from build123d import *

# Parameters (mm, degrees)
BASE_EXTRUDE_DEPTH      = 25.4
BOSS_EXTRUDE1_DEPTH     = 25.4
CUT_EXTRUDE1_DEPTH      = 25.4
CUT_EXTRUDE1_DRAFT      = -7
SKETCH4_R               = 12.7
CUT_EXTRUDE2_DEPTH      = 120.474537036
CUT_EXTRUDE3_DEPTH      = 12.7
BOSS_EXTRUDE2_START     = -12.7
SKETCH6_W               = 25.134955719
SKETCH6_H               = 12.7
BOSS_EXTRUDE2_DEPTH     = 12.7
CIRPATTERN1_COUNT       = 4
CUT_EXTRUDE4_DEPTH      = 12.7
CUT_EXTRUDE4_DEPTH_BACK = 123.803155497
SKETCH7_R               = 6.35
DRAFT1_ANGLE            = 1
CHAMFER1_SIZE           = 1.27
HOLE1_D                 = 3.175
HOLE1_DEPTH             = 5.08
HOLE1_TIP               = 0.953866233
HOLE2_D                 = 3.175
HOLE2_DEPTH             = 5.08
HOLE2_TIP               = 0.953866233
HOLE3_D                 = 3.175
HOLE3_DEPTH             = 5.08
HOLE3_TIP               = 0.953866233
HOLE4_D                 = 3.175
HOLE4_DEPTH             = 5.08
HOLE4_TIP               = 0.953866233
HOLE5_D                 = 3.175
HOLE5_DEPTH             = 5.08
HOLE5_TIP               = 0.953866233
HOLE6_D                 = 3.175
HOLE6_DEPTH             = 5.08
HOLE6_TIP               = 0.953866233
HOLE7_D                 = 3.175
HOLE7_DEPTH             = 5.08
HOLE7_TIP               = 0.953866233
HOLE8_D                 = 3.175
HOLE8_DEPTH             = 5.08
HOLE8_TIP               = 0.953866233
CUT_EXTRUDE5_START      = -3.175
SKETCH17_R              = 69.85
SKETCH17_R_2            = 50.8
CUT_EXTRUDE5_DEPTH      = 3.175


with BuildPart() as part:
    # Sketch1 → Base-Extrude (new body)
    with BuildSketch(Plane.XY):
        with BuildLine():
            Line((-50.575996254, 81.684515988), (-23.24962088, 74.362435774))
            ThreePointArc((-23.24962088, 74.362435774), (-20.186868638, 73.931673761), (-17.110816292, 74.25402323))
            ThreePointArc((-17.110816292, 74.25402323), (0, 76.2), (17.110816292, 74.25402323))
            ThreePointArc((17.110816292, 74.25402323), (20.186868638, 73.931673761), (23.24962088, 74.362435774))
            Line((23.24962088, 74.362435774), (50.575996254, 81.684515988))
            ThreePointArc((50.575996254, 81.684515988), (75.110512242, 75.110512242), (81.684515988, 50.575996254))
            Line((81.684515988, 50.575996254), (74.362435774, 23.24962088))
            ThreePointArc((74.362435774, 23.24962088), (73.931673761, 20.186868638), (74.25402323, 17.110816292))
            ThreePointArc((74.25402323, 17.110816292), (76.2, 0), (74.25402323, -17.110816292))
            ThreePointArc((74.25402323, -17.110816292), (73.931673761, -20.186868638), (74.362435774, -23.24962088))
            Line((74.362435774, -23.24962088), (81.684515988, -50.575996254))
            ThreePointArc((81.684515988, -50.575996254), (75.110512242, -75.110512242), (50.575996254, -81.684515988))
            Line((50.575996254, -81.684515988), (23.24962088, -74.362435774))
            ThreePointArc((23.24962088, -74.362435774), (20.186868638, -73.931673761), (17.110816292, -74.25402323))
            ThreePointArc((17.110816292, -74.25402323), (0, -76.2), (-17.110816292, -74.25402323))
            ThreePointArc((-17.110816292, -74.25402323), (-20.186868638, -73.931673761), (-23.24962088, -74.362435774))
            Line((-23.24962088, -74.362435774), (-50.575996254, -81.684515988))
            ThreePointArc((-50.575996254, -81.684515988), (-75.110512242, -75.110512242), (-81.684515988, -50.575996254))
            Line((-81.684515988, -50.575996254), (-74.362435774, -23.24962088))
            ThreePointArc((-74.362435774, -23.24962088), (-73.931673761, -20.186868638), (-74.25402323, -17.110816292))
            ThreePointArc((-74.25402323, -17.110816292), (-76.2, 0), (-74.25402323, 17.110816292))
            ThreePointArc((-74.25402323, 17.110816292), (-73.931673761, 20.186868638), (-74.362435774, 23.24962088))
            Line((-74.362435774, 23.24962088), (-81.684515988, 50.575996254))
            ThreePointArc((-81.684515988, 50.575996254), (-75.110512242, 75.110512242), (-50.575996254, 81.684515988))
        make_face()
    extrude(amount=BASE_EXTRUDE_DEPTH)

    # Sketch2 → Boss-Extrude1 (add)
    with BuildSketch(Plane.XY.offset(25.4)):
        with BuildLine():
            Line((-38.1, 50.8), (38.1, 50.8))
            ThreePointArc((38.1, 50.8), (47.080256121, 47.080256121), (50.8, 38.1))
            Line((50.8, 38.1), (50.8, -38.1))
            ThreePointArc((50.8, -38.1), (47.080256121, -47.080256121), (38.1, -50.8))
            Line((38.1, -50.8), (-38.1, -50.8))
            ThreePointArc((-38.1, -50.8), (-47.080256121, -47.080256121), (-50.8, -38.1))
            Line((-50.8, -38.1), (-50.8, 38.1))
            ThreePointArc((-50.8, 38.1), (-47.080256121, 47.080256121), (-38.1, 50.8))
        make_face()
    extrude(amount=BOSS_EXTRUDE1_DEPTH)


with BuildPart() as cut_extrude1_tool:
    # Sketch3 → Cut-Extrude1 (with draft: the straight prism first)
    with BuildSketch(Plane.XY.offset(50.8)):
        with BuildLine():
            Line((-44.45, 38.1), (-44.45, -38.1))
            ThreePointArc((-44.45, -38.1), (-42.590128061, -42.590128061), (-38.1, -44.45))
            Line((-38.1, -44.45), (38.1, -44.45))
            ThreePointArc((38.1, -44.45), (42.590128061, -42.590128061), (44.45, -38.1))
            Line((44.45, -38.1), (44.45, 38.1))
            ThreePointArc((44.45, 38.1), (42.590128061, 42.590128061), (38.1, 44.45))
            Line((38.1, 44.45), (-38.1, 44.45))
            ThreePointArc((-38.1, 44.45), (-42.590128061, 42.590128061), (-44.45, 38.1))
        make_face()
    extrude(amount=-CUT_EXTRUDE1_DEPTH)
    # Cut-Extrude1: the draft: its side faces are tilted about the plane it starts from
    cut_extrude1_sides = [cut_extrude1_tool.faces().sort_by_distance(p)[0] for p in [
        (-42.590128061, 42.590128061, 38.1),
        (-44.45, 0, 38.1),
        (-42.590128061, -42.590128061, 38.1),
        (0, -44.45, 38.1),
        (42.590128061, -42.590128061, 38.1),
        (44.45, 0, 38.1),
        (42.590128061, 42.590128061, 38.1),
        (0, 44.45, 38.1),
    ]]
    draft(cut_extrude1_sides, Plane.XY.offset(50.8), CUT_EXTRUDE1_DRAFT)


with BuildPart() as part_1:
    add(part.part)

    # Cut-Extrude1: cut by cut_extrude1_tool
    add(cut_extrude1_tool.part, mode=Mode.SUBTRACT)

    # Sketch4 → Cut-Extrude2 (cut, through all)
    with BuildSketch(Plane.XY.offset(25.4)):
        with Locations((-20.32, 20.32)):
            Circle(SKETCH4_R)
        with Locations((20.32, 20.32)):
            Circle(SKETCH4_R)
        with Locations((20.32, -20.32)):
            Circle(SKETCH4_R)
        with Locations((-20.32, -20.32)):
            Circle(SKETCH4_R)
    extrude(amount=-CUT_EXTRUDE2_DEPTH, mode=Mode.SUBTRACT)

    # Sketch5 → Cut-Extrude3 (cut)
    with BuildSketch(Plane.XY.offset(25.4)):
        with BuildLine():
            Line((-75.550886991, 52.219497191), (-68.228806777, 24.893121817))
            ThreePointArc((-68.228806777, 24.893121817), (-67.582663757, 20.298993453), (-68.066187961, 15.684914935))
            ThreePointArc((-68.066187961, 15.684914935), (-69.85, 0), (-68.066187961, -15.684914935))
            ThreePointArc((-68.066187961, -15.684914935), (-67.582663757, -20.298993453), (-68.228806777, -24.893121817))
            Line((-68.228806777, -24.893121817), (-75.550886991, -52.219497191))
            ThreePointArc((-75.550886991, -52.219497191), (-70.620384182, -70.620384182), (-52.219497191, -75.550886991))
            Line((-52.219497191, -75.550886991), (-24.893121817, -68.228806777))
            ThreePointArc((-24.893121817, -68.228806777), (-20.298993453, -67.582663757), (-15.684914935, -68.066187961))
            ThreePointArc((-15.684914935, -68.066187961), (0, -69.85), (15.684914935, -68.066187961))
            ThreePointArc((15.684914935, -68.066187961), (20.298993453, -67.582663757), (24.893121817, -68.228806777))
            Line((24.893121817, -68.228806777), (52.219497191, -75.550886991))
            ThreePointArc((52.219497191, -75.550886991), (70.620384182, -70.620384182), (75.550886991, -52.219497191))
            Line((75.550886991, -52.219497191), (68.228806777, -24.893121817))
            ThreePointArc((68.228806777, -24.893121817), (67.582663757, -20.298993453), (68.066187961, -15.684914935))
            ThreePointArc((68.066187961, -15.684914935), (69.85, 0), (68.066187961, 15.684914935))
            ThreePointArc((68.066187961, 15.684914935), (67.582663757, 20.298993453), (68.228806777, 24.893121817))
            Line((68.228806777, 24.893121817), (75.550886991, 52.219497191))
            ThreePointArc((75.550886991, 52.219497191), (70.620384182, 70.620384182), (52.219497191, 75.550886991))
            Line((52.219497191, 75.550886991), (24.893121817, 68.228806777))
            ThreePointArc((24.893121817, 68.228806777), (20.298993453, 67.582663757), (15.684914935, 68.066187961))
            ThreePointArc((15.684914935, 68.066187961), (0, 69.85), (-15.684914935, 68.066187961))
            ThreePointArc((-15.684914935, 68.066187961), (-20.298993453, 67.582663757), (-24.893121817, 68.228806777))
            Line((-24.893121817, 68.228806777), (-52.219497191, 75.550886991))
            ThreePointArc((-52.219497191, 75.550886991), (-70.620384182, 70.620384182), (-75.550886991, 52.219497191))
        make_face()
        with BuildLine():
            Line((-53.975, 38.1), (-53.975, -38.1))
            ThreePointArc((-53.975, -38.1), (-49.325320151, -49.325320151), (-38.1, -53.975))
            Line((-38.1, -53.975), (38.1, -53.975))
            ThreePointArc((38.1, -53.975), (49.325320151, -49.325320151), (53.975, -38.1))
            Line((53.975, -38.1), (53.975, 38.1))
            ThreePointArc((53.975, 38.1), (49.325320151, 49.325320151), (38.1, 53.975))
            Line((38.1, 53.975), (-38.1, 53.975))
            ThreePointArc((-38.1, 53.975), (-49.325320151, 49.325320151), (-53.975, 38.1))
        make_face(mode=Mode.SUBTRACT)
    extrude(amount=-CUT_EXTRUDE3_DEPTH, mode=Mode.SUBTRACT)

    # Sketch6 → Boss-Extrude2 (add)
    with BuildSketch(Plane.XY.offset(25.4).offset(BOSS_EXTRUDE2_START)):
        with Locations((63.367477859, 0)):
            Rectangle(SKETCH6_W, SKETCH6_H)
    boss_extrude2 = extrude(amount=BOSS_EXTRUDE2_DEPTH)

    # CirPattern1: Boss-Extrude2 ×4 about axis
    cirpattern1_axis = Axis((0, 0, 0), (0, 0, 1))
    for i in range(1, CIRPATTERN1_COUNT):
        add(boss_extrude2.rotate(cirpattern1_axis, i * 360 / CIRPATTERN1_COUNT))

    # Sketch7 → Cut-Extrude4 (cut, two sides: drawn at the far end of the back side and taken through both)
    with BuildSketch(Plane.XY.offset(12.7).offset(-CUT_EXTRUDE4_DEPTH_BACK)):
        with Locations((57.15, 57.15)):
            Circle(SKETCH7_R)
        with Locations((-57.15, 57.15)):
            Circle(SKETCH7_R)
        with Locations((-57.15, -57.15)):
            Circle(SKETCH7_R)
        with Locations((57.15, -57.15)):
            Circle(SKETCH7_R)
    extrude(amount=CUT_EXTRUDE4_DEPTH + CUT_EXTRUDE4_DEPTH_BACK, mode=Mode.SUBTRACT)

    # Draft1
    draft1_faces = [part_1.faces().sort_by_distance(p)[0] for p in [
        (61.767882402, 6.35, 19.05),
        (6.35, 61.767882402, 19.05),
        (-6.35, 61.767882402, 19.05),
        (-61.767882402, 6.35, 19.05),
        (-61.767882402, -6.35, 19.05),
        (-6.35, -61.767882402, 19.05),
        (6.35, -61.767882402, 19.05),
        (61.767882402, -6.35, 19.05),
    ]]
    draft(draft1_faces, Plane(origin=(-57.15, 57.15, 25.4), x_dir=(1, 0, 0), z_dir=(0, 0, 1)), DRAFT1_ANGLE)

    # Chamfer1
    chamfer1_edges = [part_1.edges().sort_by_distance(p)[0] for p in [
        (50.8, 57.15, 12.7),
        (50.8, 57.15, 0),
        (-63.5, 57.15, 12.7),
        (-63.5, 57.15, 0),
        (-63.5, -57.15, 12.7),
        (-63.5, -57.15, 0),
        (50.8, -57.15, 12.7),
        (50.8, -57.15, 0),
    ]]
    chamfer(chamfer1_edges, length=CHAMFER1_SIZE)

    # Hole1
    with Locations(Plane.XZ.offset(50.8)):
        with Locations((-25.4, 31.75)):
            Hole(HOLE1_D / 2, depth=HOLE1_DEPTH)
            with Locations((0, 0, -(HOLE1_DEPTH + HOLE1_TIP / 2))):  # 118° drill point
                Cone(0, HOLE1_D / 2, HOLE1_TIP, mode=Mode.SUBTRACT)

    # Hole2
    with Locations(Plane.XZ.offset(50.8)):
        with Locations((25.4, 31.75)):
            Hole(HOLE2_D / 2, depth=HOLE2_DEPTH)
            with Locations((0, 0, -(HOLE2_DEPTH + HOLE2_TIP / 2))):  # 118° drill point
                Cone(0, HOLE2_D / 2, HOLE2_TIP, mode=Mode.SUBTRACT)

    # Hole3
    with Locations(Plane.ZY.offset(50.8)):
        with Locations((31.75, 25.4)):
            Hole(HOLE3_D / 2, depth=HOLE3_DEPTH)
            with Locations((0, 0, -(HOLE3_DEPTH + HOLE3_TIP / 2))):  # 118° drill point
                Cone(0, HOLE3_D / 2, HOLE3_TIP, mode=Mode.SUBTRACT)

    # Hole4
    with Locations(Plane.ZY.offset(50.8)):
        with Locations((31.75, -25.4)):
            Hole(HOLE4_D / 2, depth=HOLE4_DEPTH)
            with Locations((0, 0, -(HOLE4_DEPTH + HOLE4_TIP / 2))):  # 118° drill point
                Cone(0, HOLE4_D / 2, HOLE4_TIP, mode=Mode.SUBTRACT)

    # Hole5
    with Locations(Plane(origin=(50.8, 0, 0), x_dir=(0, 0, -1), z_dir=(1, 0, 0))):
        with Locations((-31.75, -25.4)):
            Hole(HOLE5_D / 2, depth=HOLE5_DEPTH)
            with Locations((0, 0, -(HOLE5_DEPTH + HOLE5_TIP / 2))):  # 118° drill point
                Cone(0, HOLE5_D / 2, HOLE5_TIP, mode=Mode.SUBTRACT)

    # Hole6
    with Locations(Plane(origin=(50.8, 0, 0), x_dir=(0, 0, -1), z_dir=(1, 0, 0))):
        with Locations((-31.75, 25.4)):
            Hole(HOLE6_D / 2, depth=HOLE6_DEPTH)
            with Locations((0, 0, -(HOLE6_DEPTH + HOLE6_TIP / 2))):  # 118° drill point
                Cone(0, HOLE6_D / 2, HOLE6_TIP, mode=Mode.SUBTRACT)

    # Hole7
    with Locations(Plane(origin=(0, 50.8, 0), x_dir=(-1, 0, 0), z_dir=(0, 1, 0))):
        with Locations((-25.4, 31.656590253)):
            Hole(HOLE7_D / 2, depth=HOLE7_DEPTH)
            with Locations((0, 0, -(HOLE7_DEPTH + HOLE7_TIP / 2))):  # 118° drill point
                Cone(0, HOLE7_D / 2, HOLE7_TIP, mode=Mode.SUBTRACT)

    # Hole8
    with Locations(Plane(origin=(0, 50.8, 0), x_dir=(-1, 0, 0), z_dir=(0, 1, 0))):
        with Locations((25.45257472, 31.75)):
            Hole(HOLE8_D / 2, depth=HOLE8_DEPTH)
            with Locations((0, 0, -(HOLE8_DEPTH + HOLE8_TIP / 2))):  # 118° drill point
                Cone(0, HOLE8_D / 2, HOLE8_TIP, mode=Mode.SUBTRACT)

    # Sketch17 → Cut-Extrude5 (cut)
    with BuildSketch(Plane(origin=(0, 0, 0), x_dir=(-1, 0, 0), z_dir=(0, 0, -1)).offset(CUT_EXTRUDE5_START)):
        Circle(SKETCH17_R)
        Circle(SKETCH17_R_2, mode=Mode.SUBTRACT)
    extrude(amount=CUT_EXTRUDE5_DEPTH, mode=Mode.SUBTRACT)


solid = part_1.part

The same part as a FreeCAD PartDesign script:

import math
import FreeCAD as App
import Part
import Sketcher
from FreeCAD import Vector
Q = App.Units.Quantity


def edges_at(feature, points):
    """Names of the edges that pass closest to the given points."""
    edges = feature.Shape.Edges
    near = lambda p: min(range(len(edges)), key=lambda i: edges[i].distToShape(Part.Vertex(*p))[0])
    return sorted({f"Edge{near(p) + 1}" for p in points})


def faces_at(feature, points):
    """Names of the faces that lie closest to the given points."""
    faces = feature.Shape.Faces
    near = lambda p: min(range(len(faces)), key=lambda i: faces[i].distToShape(Part.Vertex(*p))[0])
    return sorted({f"Face{near(p) + 1}" for p in points})

doc = App.newDocument("Part")
body = doc.addObject("PartDesign::Body", "Body")

# Sketch on XY plane
sketch1 = body.newObject("Sketcher::SketchObject", "Sketch")
sketch1.AttachmentSupport = (doc.getObject("XY_Plane"), [""])
sketch1.MapMode = "FlatFace"
sketch1.addGeometry([
    Part.LineSegment(Vector(-23, 74, 0), Vector(-51, 82, 0)),  # 0
    Part.ArcOfCircle(Part.Circle(Vector(-57, 57, 0), Vector(0, 0, 1), 25), math.radians(75), math.radians(195)),  # 1
    Part.LineSegment(Vector(-82, 51, 0), Vector(-74, 23, 0)),  # 2
    Part.ArcOfCircle(Part.Circle(Vector(-87, 20, 0), Vector(0, 0, 1), 13), math.radians(-13), math.radians(15)),  # 3
    Part.ArcOfCircle(Part.Circle(Vector(0, 0, 0), Vector(0, 0, 1), 76), math.radians(167), math.radians(193)),  # 4
    Part.ArcOfCircle(Part.Circle(Vector(-87, -20, 0), Vector(0, 0, 1), 13), math.radians(-15), math.radians(13)),  # 5
    Part.LineSegment(Vector(-74, -23, 0), Vector(-82, -51, 0)),  # 6
    Part.ArcOfCircle(Part.Circle(Vector(-57, -57, 0), Vector(0, 0, 1), 25), math.radians(165), math.radians(285)),  # 7
    Part.LineSegment(Vector(-51, -82, 0), Vector(-23, -74, 0)),  # 8
    Part.ArcOfCircle(Part.Circle(Vector(-20, -87, 0), Vector(0, 0, 1), 13), math.radians(77), math.radians(105)),  # 9
    Part.ArcOfCircle(Part.Circle(Vector(0, 0, 0), Vector(0, 0, 1), 76), math.radians(-103), math.radians(-77)),  # 10
    Part.ArcOfCircle(Part.Circle(Vector(20, -87, 0), Vector(0, 0, 1), 13), math.radians(75), math.radians(103)),  # 11
    Part.LineSegment(Vector(23, -74, 0), Vector(51, -82, 0)),  # 12
    Part.ArcOfCircle(Part.Circle(Vector(57, -57, 0), Vector(0, 0, 1), 25), math.radians(-105), math.radians(15)),  # 13
    Part.LineSegment(Vector(82, -51, 0), Vector(74, -23, 0)),  # 14
    Part.ArcOfCircle(Part.Circle(Vector(87, -20, 0), Vector(0, 0, 1), 13), math.radians(167), math.radians(195)),  # 15
    Part.ArcOfCircle(Part.Circle(Vector(0, 0, 0), Vector(0, 0, 1), 76), math.radians(-13), math.radians(13)),  # 16
    Part.ArcOfCircle(Part.Circle(Vector(87, 20, 0), Vector(0, 0, 1), 13), math.radians(165), math.radians(193)),  # 17
    Part.LineSegment(Vector(74, 23, 0), Vector(82, 51, 0)),  # 18
    Part.ArcOfCircle(Part.Circle(Vector(57, 57, 0), Vector(0, 0, 1), 25), math.radians(-15), math.radians(105)),  # 19
    Part.LineSegment(Vector(51, 82, 0), Vector(23, 74, 0)),  # 20
    Part.ArcOfCircle(Part.Circle(Vector(20, 87, 0), Vector(0, 0, 1), 13), math.radians(-103), math.radians(-75)),  # 21
    Part.ArcOfCircle(Part.Circle(Vector(0, 0, 0), Vector(0, 0, 1), 76), math.radians(77), math.radians(103)),  # 22
    Part.ArcOfCircle(Part.Circle(Vector(-20, 87, 0), Vector(0, 0, 1), 13), math.radians(-105), math.radians(-77)),  # 23
], False)
sketch1.addConstraint([
    Sketcher.Constraint("Tangent", 0, 2, 1, 1),
    Sketcher.Constraint("Tangent", 1, 2, 2, 1),
    Sketcher.Constraint("Tangent", 2, 2, 3, 2),
    Sketcher.Constraint("Tangent", 3, 1, 4, 1),
    Sketcher.Constraint("Tangent", 4, 2, 5, 2),
    Sketcher.Constraint("Tangent", 5, 1, 6, 1),
    Sketcher.Constraint("Tangent", 6, 2, 7, 1),
    Sketcher.Constraint("Tangent", 7, 2, 8, 1),
    Sketcher.Constraint("Tangent", 8, 2, 9, 2),
    Sketcher.Constraint("Tangent", 9, 1, 10, 1),
    Sketcher.Constraint("Tangent", 10, 2, 11, 2),
    Sketcher.Constraint("Tangent", 11, 1, 12, 1),
    Sketcher.Constraint("Tangent", 12, 2, 13, 1),
    Sketcher.Constraint("Tangent", 13, 2, 14, 1),
    Sketcher.Constraint("Tangent", 14, 2, 15, 2),
    Sketcher.Constraint("Tangent", 15, 1, 16, 1),
    Sketcher.Constraint("Tangent", 16, 2, 17, 2),
    Sketcher.Constraint("Tangent", 17, 1, 18, 1),
    Sketcher.Constraint("Tangent", 18, 2, 19, 1),
    Sketcher.Constraint("Tangent", 19, 2, 20, 1),
    Sketcher.Constraint("Tangent", 20, 2, 21, 2),
    Sketcher.Constraint("Tangent", 21, 1, 22, 1),
    Sketcher.Constraint("Tangent", 22, 2, 23, 2),
    Sketcher.Constraint("Tangent", 23, 1, 0, 1),
    Sketcher.Constraint("Coincident", 4, 3, -1, 1),
    Sketcher.Constraint("Coincident", 10, 3, -1, 1),
    Sketcher.Constraint("Coincident", 16, 3, -1, 1),
    Sketcher.Constraint("Coincident", 22, 3, -1, 1),
    Sketcher.Constraint("Equal", 3, 5),
    Sketcher.Constraint("Equal", 1, 7),
    Sketcher.Constraint("Equal", 5, 9),
    Sketcher.Constraint("Equal", 4, 10),
    Sketcher.Constraint("Equal", 9, 11),
    Sketcher.Constraint("Equal", 7, 13),
    Sketcher.Constraint("Equal", 11, 15),
    Sketcher.Constraint("Equal", 10, 16),
    Sketcher.Constraint("Equal", 15, 17),
    Sketcher.Constraint("Equal", 13, 19),
    Sketcher.Constraint("Equal", 17, 21),
    Sketcher.Constraint("Equal", 16, 22),
    Sketcher.Constraint("Equal", 21, 23),
    Sketcher.Constraint("Symmetric", 1, 3, 13, 3, -1, 1),
    Sketcher.Constraint("Symmetric", 7, 3, 19, 3, -1, 1),
    Sketcher.Constraint("Symmetric", 7, 3, 13, 3, -2),
    Sketcher.Constraint("Perpendicular", 0, 6),
    Sketcher.Constraint("Perpendicular", 2, 8),
    Sketcher.Constraint("Perpendicular", 6, 12),
    Sketcher.Constraint("Perpendicular", 8, 14),
    Sketcher.Constraint("Perpendicular", 12, 18),
    Sketcher.Constraint("Perpendicular", 14, 20),
    Sketcher.Constraint("Horizontal", 9, 3, 11, 3),
    Sketcher.Constraint("Equal", 0, 2),
    Sketcher.Constraint("Radius", 1, Q("1 in")),
    Sketcher.Constraint("Radius", 4, Q("3 in")),
    Sketcher.Constraint("Radius", 3, Q("0.5 in")),
    Sketcher.Constraint("Angle", 0, Q("165 deg")),
    Sketcher.Constraint("DistanceY", 7, 3, 1, 3, Q("4.5 in")),
])
pad1 = body.newObject("PartDesign::Pad", "Pad")
pad1.Profile = sketch1
pad1.Length = Q("1 in")

# Sketch on XY plane
sketch2 = body.newObject("Sketcher::SketchObject", "Sketch001")
sketch2.AttachmentSupport = (doc.getObject("XY_Plane"), [""])
sketch2.MapMode = "FlatFace"
sketch2.AttachmentOffset = App.Placement(Vector(0, 0, 1 * 25.4), App.Rotation())
sketch2.addGeometry([
    Part.LineSegment(Vector(38, 51, 0), Vector(-38, 51, 0)),  # 0
    Part.ArcOfCircle(Part.Circle(Vector(-38, 38, 0), Vector(0, 0, 1), 13), math.radians(90), math.radians(180)),  # 1
    Part.LineSegment(Vector(-51, 38, 0), Vector(-51, -38, 0)),  # 2
    Part.ArcOfCircle(Part.Circle(Vector(-38, -38, 0), Vector(0, 0, 1), 13), math.radians(180), math.radians(270)),  # 3
    Part.LineSegment(Vector(-38, -51, 0), Vector(38, -51, 0)),  # 4
    Part.ArcOfCircle(Part.Circle(Vector(38, -38, 0), Vector(0, 0, 1), 13), math.radians(-90), math.radians(0)),  # 5
    Part.LineSegment(Vector(51, -38, 0), Vector(51, 38, 0)),  # 6
    Part.ArcOfCircle(Part.Circle(Vector(38, 38, 0), Vector(0, 0, 1), 13), math.radians(0), math.radians(90)),  # 7
], False)
sketch2.addConstraint([
    Sketcher.Constraint("Tangent", 0, 2, 1, 1),
    Sketcher.Constraint("Tangent", 1, 2, 2, 1),
    Sketcher.Constraint("Tangent", 2, 2, 3, 1),
    Sketcher.Constraint("Tangent", 3, 2, 4, 1),
    Sketcher.Constraint("Tangent", 4, 2, 5, 1),
    Sketcher.Constraint("Tangent", 5, 2, 6, 1),
    Sketcher.Constraint("Tangent", 6, 2, 7, 1),
    Sketcher.Constraint("Tangent", 7, 2, 0, 1),
    Sketcher.Constraint("Horizontal", 0),
    Sketcher.Constraint("Vertical", 2),
    Sketcher.Constraint("Horizontal", 4),
    Sketcher.Constraint("Vertical", 6),
    Sketcher.Constraint("Equal", 1, 3),
    Sketcher.Constraint("Equal", 3, 5),
    Sketcher.Constraint("Equal", 5, 7),
    Sketcher.Constraint("Symmetric", 1, 3, 5, 3, -1, 1),
    Sketcher.Constraint("Equal", 4, 2),
    Sketcher.Constraint("Radius", 1, Q("0.5 in")),
    Sketcher.Constraint("DistanceX", 0, 2, 0, 1, Q("3 in")),
])
pad2 = body.newObject("PartDesign::Pad", "Pad001")
pad2.Profile = sketch2
pad2.Length = Q("1 in")
body2 = doc.addObject("PartDesign::Body", "Body001")

# Sketch on XY plane
sketch3 = body2.newObject("Sketcher::SketchObject", "Sketch002")
sketch3.AttachmentSupport = (doc.getObject("XY_Plane001"), [""])
sketch3.MapMode = "FlatFace"
sketch3.AttachmentOffset = App.Placement(Vector(0, 0, 2 * 25.4), App.Rotation())
sketch3.addGeometry([
    Part.LineSegment(Vector(-44, 38, 0), Vector(-44, -38, 0)),  # 0
    Part.ArcOfCircle(Part.Circle(Vector(-38, -38, 0), Vector(0, 0, 1), 6), math.radians(180), math.radians(270)),  # 1
    Part.LineSegment(Vector(-38, -44, 0), Vector(38, -44, 0)),  # 2
    Part.ArcOfCircle(Part.Circle(Vector(38, -38, 0), Vector(0, 0, 1), 6), math.radians(-90), math.radians(0)),  # 3
    Part.LineSegment(Vector(44, -38, 0), Vector(44, 38, 0)),  # 4
    Part.ArcOfCircle(Part.Circle(Vector(38, 38, 0), Vector(0, 0, 1), 6), math.radians(0), math.radians(90)),  # 5
    Part.LineSegment(Vector(38, 44, 0), Vector(-38, 44, 0)),  # 6
    Part.ArcOfCircle(Part.Circle(Vector(-38, 38, 0), Vector(0, 0, 1), 6), math.radians(90), math.radians(180)),  # 7
], False)
sketch3.addConstraint([
    Sketcher.Constraint("Tangent", 0, 2, 1, 1),
    Sketcher.Constraint("Tangent", 1, 2, 2, 1),
    Sketcher.Constraint("Tangent", 2, 2, 3, 1),
    Sketcher.Constraint("Tangent", 3, 2, 4, 1),
    Sketcher.Constraint("Tangent", 4, 2, 5, 1),
    Sketcher.Constraint("Tangent", 5, 2, 6, 1),
    Sketcher.Constraint("Tangent", 6, 2, 7, 1),
    Sketcher.Constraint("Tangent", 7, 2, 0, 1),
    Sketcher.Constraint("Vertical", 0),
    Sketcher.Constraint("Horizontal", 2),
    Sketcher.Constraint("Vertical", 4),
    Sketcher.Constraint("Horizontal", 6),
    Sketcher.Constraint("Equal", 1, 3),
    Sketcher.Constraint("Equal", 3, 5),
    Sketcher.Constraint("Equal", 5, 7),
    Sketcher.Constraint("Symmetric", 1, 3, 5, 3, -1, 1),
    Sketcher.Constraint("Equal", 6, 0),
    Sketcher.Constraint("DistanceX", 2, 1, 2, 2, Q("3 in")),
    Sketcher.Constraint("Radius", 1, Q("0.25 in")),
])
pad3 = body2.newObject("PartDesign::Pad", "Pad002")
pad3.Profile = sketch3
pad3.Length = Q("1 in")
pad3.Reversed = True
doc.recompute()

datumplane = body2.newObject("PartDesign::Plane", "DatumPlane")
datumplane.AttachmentSupport = (doc.getObject("XY_Plane001"), [""])
datumplane.MapMode = "FlatFace"
datumplane.AttachmentOffset = App.Placement(Vector(0, 0, 2 * 25.4), App.Rotation())
draft = body2.newObject("PartDesign::Draft", "Draft")
draft.Base = (pad3, faces_at(pad3, [
    (-42.59, 42.59, 38.1),
    (-44.45, 0, 38.1),
    (-42.59, -42.59, 38.1),
    (0, -44.45, 38.1),
    (42.59, -42.59, 38.1),
    (44.45, 0, 38.1),
    (42.59, 42.59, 38.1),
    (0, 44.45, 38.1),
]))
draft.NeutralPlane = (datumplane, [""])
draft.Angle = 7
draft.Reversed = True
doc.recompute()

boolean = body.newObject("PartDesign::Boolean", "Boolean")
boolean.Type = "Cut"
boolean.addObjects([body2])

# Sketch on XY plane
sketch4 = body.newObject("Sketcher::SketchObject", "Sketch003")
sketch4.AttachmentSupport = (doc.getObject("XY_Plane"), [""])
sketch4.MapMode = "FlatFace"
sketch4.AttachmentOffset = App.Placement(Vector(0, 0, 1 * 25.4), App.Rotation())
sketch4.addGeometry([
    Part.Circle(Vector(-20, 20, 0), Vector(0, 0, 1), 13),
    Part.Circle(Vector(20, 20, 0), Vector(0, 0, 1), 13),
    Part.Circle(Vector(20, -20, 0), Vector(0, 0, 1), 13),
    Part.Circle(Vector(-20, -20, 0), Vector(0, 0, 1), 13),
], False)
sketch4.addConstraint([
    Sketcher.Constraint("Equal", 0, 1),
    Sketcher.Constraint("Equal", 1, 2),
    Sketcher.Constraint("Equal", 2, 3),
    Sketcher.Constraint("Symmetric", 0, 3, 2, 3, -1, 1),
    Sketcher.Constraint("Symmetric", 1, 3, 3, 3, -1, 1),
    Sketcher.Constraint("Symmetric", 0, 3, 1, 3, -2),
    Sketcher.Constraint("Diameter", 0, Q("1 in")),
    Sketcher.Constraint("DistanceX", 0, 3, -1, 1, Q("0.8 in")),
    Sketcher.Constraint("DistanceY", -1, 1, 0, 3, Q("0.8 in")),
])
pocket1 = body.newObject("PartDesign::Pocket", "Pocket")
pocket1.Profile = sketch4
pocket1.Type = "ThroughAll"

# Sketch on XY plane
sketch5 = body.newObject("Sketcher::SketchObject", "Sketch004")
sketch5.AttachmentSupport = (doc.getObject("XY_Plane"), [""])
sketch5.MapMode = "FlatFace"
sketch5.AttachmentOffset = App.Placement(Vector(0, 0, 1 * 25.4), App.Rotation())
sketch5.addGeometry([
    Part.LineSegment(Vector(-76, 52, 0), Vector(-68, 25, 0)),  # 0
    Part.ArcOfCircle(Part.Circle(Vector(-87, 20, 0), Vector(0, 0, 1), 19), math.radians(-13), math.radians(15)),  # 1
    Part.ArcOfCircle(Part.Circle(Vector(0, 0, 0), Vector(0, 0, 1), 70), math.radians(167), math.radians(193)),  # 2
    Part.ArcOfCircle(Part.Circle(Vector(-87, -20, 0), Vector(0, 0, 1), 19), math.radians(-15), math.radians(13)),  # 3
    Part.LineSegment(Vector(-68, -25, 0), Vector(-76, -52, 0)),  # 4
    Part.ArcOfCircle(Part.Circle(Vector(-57, -57, 0), Vector(0, 0, 1), 19), math.radians(165), math.radians(285)),  # 5
    Part.LineSegment(Vector(-52, -76, 0), Vector(-25, -68, 0)),  # 6
    Part.ArcOfCircle(Part.Circle(Vector(-20, -87, 0), Vector(0, 0, 1), 19), math.radians(77), math.radians(105)),  # 7
    Part.ArcOfCircle(Part.Circle(Vector(0, 0, 0), Vector(0, 0, 1), 70), math.radians(-103), math.radians(-77)),  # 8
    Part.ArcOfCircle(Part.Circle(Vector(20, -87, 0), Vector(0, 0, 1), 19), math.radians(75), math.radians(103)),  # 9
    Part.LineSegment(Vector(25, -68, 0), Vector(52, -76, 0)),  # 10
    Part.ArcOfCircle(Part.Circle(Vector(57, -57, 0), Vector(0, 0, 1), 19), math.radians(-105), math.radians(15)),  # 11
    Part.LineSegment(Vector(76, -52, 0), Vector(68, -25, 0)),  # 12
    Part.ArcOfCircle(Part.Circle(Vector(87, -20, 0), Vector(0, 0, 1), 19), math.radians(167), math.radians(195)),  # 13
    Part.ArcOfCircle(Part.Circle(Vector(0, 0, 0), Vector(0, 0, 1), 70), math.radians(-13), math.radians(13)),  # 14
    Part.ArcOfCircle(Part.Circle(Vector(87, 20, 0), Vector(0, 0, 1), 19), math.radians(165), math.radians(193)),  # 15
    Part.LineSegment(Vector(68, 25, 0), Vector(76, 52, 0)),  # 16
    Part.ArcOfCircle(Part.Circle(Vector(57, 57, 0), Vector(0, 0, 1), 19), math.radians(-15), math.radians(105)),  # 17
    Part.LineSegment(Vector(52, 76, 0), Vector(25, 68, 0)),  # 18
    Part.ArcOfCircle(Part.Circle(Vector(20, 87, 0), Vector(0, 0, 1), 19), math.radians(-103), math.radians(-75)),  # 19
    Part.ArcOfCircle(Part.Circle(Vector(0, 0, 0), Vector(0, 0, 1), 70), math.radians(77), math.radians(103)),  # 20
    Part.ArcOfCircle(Part.Circle(Vector(-20, 87, 0), Vector(0, 0, 1), 19), math.radians(-105), math.radians(-77)),  # 21
    Part.LineSegment(Vector(-25, 68, 0), Vector(-52, 76, 0)),  # 22
    Part.ArcOfCircle(Part.Circle(Vector(-57, 57, 0), Vector(0, 0, 1), 19), math.radians(75), math.radians(195)),  # 23
    Part.LineSegment(Vector(-54, -38, 0), Vector(-54, 38, 0)),  # 24
    Part.ArcOfCircle(Part.Circle(Vector(-38, 38, 0), Vector(0, 0, 1), 16), math.radians(90), math.radians(180)),  # 25
    Part.LineSegment(Vector(-38, 54, 0), Vector(38, 54, 0)),  # 26
    Part.ArcOfCircle(Part.Circle(Vector(38, 38, 0), Vector(0, 0, 1), 16), math.radians(0), math.radians(90)),  # 27
    Part.LineSegment(Vector(54, 38, 0), Vector(54, -38, 0)),  # 28
    Part.ArcOfCircle(Part.Circle(Vector(38, -38, 0), Vector(0, 0, 1), 16), math.radians(-90), math.radians(0)),  # 29
    Part.LineSegment(Vector(38, -54, 0), Vector(-38, -54, 0)),  # 30
    Part.ArcOfCircle(Part.Circle(Vector(-38, -38, 0), Vector(0, 0, 1), 16), math.radians(-180), math.radians(-90)),  # 31
], False)
sketch5.addConstraint([
    Sketcher.Constraint("Tangent", 0, 2, 1, 2),
    Sketcher.Constraint("Tangent", 1, 1, 2, 1),
    Sketcher.Constraint("Tangent", 2, 2, 3, 2),
    Sketcher.Constraint("Tangent", 3, 1, 4, 1),
    Sketcher.Constraint("Tangent", 4, 2, 5, 1),
    Sketcher.Constraint("Tangent", 5, 2, 6, 1),
    Sketcher.Constraint("Tangent", 6, 2, 7, 2),
    Sketcher.Constraint("Tangent", 7, 1, 8, 1),
    Sketcher.Constraint("Tangent", 8, 2, 9, 2),
    Sketcher.Constraint("Tangent", 9, 1, 10, 1),
    Sketcher.Constraint("Tangent", 10, 2, 11, 1),
    Sketcher.Constraint("Tangent", 11, 2, 12, 1),
    Sketcher.Constraint("Tangent", 12, 2, 13, 2),
    Sketcher.Constraint("Tangent", 13, 1, 14, 1),
    Sketcher.Constraint("Tangent", 14, 2, 15, 2),
    Sketcher.Constraint("Tangent", 15, 1, 16, 1),
    Sketcher.Constraint("Tangent", 16, 2, 17, 1),
    Sketcher.Constraint("Tangent", 17, 2, 18, 1),
    Sketcher.Constraint("Tangent", 18, 2, 19, 2),
    Sketcher.Constraint("Tangent", 19, 1, 20, 1),
    Sketcher.Constraint("Tangent", 20, 2, 21, 2),
    Sketcher.Constraint("Tangent", 21, 1, 22, 1),
    Sketcher.Constraint("Tangent", 22, 2, 23, 1),
    Sketcher.Constraint("Tangent", 23, 2, 0, 1),
    Sketcher.Constraint("Tangent", 24, 2, 25, 2),
    Sketcher.Constraint("Tangent", 25, 1, 26, 1),
    Sketcher.Constraint("Tangent", 26, 2, 27, 2),
    Sketcher.Constraint("Tangent", 27, 1, 28, 1),
    Sketcher.Constraint("Tangent", 28, 2, 29, 2),
    Sketcher.Constraint("Tangent", 29, 1, 30, 1),
    Sketcher.Constraint("Tangent", 30, 2, 31, 2),
    Sketcher.Constraint("Tangent", 31, 1, 24, 1),
    Sketcher.Constraint("Vertical", 24),
    Sketcher.Constraint("Horizontal", 26),
    Sketcher.Constraint("Vertical", 28),
    Sketcher.Constraint("Horizontal", 30),
    Sketcher.Constraint("Coincident", 2, 3, -1, 1),
    Sketcher.Constraint("Coincident", 8, 3, -1, 1),
    Sketcher.Constraint("Coincident", 14, 3, -1, 1),
    Sketcher.Constraint("Coincident", 20, 3, -1, 1),
    Sketcher.Constraint("Equal", 1, 3),
    Sketcher.Constraint("Equal", 3, 5),
    Sketcher.Constraint("Equal", 5, 7),
    Sketcher.Constraint("Equal", 2, 8),
    Sketcher.Constraint("Equal", 7, 9),
    Sketcher.Constraint("Equal", 9, 11),
    Sketcher.Constraint("Equal", 11, 13),
    Sketcher.Constraint("Equal", 8, 14),
    Sketcher.Constraint("Equal", 13, 15),
    Sketcher.Constraint("Equal", 15, 17),
    Sketcher.Constraint("Equal", 17, 19),
    Sketcher.Constraint("Equal", 14, 20),
    Sketcher.Constraint("Equal", 19, 21),
    Sketcher.Constraint("Equal", 21, 23),
    Sketcher.Constraint("Equal", 25, 27),
    Sketcher.Constraint("Equal", 27, 29),
    Sketcher.Constraint("Equal", 29, 31),
    Sketcher.Constraint("Symmetric", 5, 3, 17, 3, -1, 1),
    Sketcher.Constraint("Symmetric", 11, 3, 23, 3, -1, 1),
    Sketcher.Constraint("Symmetric", 25, 3, 29, 3, -1, 1),
    Sketcher.Constraint("Symmetric", 5, 3, 11, 3, -2),
    Sketcher.Constraint("Perpendicular", 0, 6),
    Sketcher.Constraint("Perpendicular", 4, 10),
    Sketcher.Constraint("Perpendicular", 6, 12),
    Sketcher.Constraint("Perpendicular", 10, 16),
    Sketcher.Constraint("Perpendicular", 12, 18),
    Sketcher.Constraint("Perpendicular", 16, 22),
    Sketcher.Constraint("Horizontal", 7, 3, 9, 3),
    Sketcher.Constraint("Equal", 30, 24),
    Sketcher.Constraint("Equal", 4, 6),
    Sketcher.Constraint("DistanceX", 26, 1, 26, 2, Q("3 in")),
    Sketcher.Constraint("Radius", 1, Q("0.75 in")),
    Sketcher.Constraint("Radius", 2, Q("2.75 in")),
    Sketcher.Constraint("Angle", 0, Q("-75 deg")),
    Sketcher.Constraint("Radius", 25, Q("0.625 in")),
    Sketcher.Constraint("DistanceX", 5, 3, 11, 3, Q("4.5 in")),
])
pocket2 = body.newObject("PartDesign::Pocket", "Pocket001")
pocket2.Profile = sketch5
pocket2.Length = Q("0.5 in")

# Sketch on XY plane
sketch6 = body.newObject("Sketcher::SketchObject", "Sketch005")
sketch6.AttachmentSupport = (doc.getObject("XY_Plane"), [""])
sketch6.MapMode = "FlatFace"
sketch6.AttachmentOffset = App.Placement(Vector(0, 0, 0.5 * 25.4), App.Rotation())
sketch6.addGeometry([
    Part.LineSegment(Vector(51, 6, 0), Vector(51, -6, 0)),
    Part.LineSegment(Vector(51, -6, 0), Vector(76, -6, 0)),
    Part.LineSegment(Vector(76, -6, 0), Vector(76, 6, 0)),
    Part.LineSegment(Vector(76, 6, 0), Vector(51, 6, 0)),
], False)
sketch6.addConstraint([
    Sketcher.Constraint("Coincident", 0, 2, 1, 1),
    Sketcher.Constraint("Coincident", 1, 2, 2, 1),
    Sketcher.Constraint("Coincident", 2, 2, 3, 1),
    Sketcher.Constraint("Coincident", 3, 2, 0, 1),
    Sketcher.Constraint("Vertical", 0),
    Sketcher.Constraint("Horizontal", 1),
    Sketcher.Constraint("Vertical", 2),
    Sketcher.Constraint("Horizontal", 3),
    Sketcher.Constraint("DistanceY", 0, 2, 0, 1, Q("0.5 in")),
    Sketcher.Constraint("DistanceX", -1, 1, 0, 2, Q("2 in")),
    Sketcher.Constraint("DistanceY", 0, 2, -1, 1, Q("0.25 in")),
    Sketcher.Constraint("DistanceX", 1, 1, 1, 2, Q("25.134956 mm")),
])
pad4 = body.newObject("PartDesign::Pad", "Pad003")
pad4.Profile = sketch6
pad4.Length = Q("0.5 in")
doc.recompute()

polarpattern = body.newObject("PartDesign::PolarPattern", "PolarPattern")
polarpattern.Originals = [pad4]
polarpattern.Axis = (doc.getObject("Z_Axis"), [""])
polarpattern.Angle = 360
polarpattern.Occurrences = 4
body.Tip = polarpattern

# Sketch on XY plane
sketch7 = body.newObject("Sketcher::SketchObject", "Sketch006")
sketch7.AttachmentSupport = (doc.getObject("XY_Plane"), [""])
sketch7.MapMode = "FlatFace"
sketch7.AttachmentOffset = App.Placement(Vector(0, 0, 0.5 * 25.4), App.Rotation())
sketch7.addGeometry([
    Part.Circle(Vector(57, 57, 0), Vector(0, 0, 1), 6),
    Part.Circle(Vector(-57, 57, 0), Vector(0, 0, 1), 6),
    Part.Circle(Vector(-57, -57, 0), Vector(0, 0, 1), 6),
    Part.Circle(Vector(57, -57, 0), Vector(0, 0, 1), 6),
], False)
sketch7.addConstraint([
    Sketcher.Constraint("Equal", 0, 1),
    Sketcher.Constraint("Equal", 1, 2),
    Sketcher.Constraint("Equal", 2, 3),
    Sketcher.Constraint("Symmetric", 0, 3, 2, 3, -1, 1),
    Sketcher.Constraint("Symmetric", 1, 3, 3, 3, -1, 1),
    Sketcher.Constraint("Symmetric", 0, 3, 1, 3, -2),
    Sketcher.Constraint("Diameter", 0, Q("0.5 in")),
    Sketcher.Constraint("DistanceX", 1, 3, 0, 3, Q("4.5 in")),
    Sketcher.Constraint("DistanceY", 2, 3, 1, 3, Q("4.5 in")),
])
pocket3 = body.newObject("PartDesign::Pocket", "Pocket002")
pocket3.Profile = sketch7
pocket3.Type = "ThroughAll"
pocket3.Midplane = True
doc.recompute()

datumplane2 = body.newObject("PartDesign::Plane", "DatumPlane001")
datumplane2.AttachmentSupport = (doc.getObject("XY_Plane"), [""])
datumplane2.MapMode = "FlatFace"
datumplane2.AttachmentOffset = App.Placement(Vector(0, 0, 1 * 25.4), App.Rotation())
draft2 = body.newObject("PartDesign::Draft", "Draft001")
draft2.Base = (pocket3, faces_at(pocket3, [
    (61.768, 6.35, 19.05),
    (6.35, 61.768, 19.05),
    (-6.35, 61.768, 19.05),
    (-61.768, 6.35, 19.05),
    (-61.768, -6.35, 19.05),
    (-6.35, -61.768, 19.05),
    (6.35, -61.768, 19.05),
    (61.768, -6.35, 19.05),
]))
draft2.NeutralPlane = (datumplane2, [""])
draft2.Angle = 1
draft2.Reversed = False
doc.recompute()

chamfer = body.newObject("PartDesign::Chamfer", "Chamfer")
chamfer.Base = (draft2, edges_at(draft2, [
    (50.8, 57.15, 12.7),
    (50.8, 57.15, 0),
    (-63.5, 57.15, 12.7),
    (-63.5, 57.15, 0),
    (-63.5, -57.15, 12.7),
    (-63.5, -57.15, 0),
    (50.8, -57.15, 12.7),
    (50.8, -57.15, 0),
]))
chamfer.Size = Q("0.05 in")

# Sketch on XZ plane
sketch8 = body.newObject("Sketcher::SketchObject", "Sketch007")
sketch8.AttachmentSupport = (doc.getObject("XZ_Plane"), [""])
sketch8.MapMode = "FlatFace"
sketch8.AttachmentOffset = App.Placement(Vector(0, 0, 2 * 25.4), App.Rotation())
sketch8.addGeometry(Part.Circle(Vector(-25.4, 31.8, 0), Vector(0, 0, 1), 1.6), False)
sketch8.addConstraint([
    Sketcher.Constraint("Diameter", 0, Q("0.125 in")),
    Sketcher.Constraint("DistanceX", 0, 3, -1, 1, Q("1 in")),
    Sketcher.Constraint("DistanceY", -1, 1, 0, 3, Q("1.25 in")),
])
doc.recompute()
hole = body.newObject("PartDesign::Hole", "Hole")
hole.Profile = sketch8
hole.ThreadType = "None"
hole.Diameter = Q("0.125 in")
hole.DepthType = "Dimension"
hole.Depth = Q("0.2 in")
hole.DrillPoint = "Angled"
hole.DrillPointAngle = 118

# Sketch on XZ plane
sketch9 = body.newObject("Sketcher::SketchObject", "Sketch008")
sketch9.AttachmentSupport = (doc.getObject("XZ_Plane"), [""])
sketch9.MapMode = "FlatFace"
sketch9.AttachmentOffset = App.Placement(Vector(0, 0, 2 * 25.4), App.Rotation())
sketch9.addGeometry(Part.Circle(Vector(25.4, 31.8, 0), Vector(0, 0, 1), 1.6), False)
sketch9.addConstraint([
    Sketcher.Constraint("Diameter", 0, Q("0.125 in")),
    Sketcher.Constraint("DistanceX", -1, 1, 0, 3, Q("1 in")),
    Sketcher.Constraint("DistanceY", -1, 1, 0, 3, Q("1.25 in")),
])
doc.recompute()
hole2 = body.newObject("PartDesign::Hole", "Hole001")
hole2.Profile = sketch9
hole2.ThreadType = "None"
hole2.Diameter = Q("0.125 in")
hole2.DepthType = "Dimension"
hole2.Depth = Q("0.2 in")
hole2.DrillPoint = "Angled"
hole2.DrillPointAngle = 118

# Sketch on YZ plane
sketch10 = body.newObject("Sketcher::SketchObject", "Sketch009")
sketch10.AttachmentSupport = (doc.getObject("YZ_Plane"), [""])
sketch10.MapMode = "FlatFace"
sketch10.AttachmentOffset = App.Placement(Vector(0, 0, -2 * 25.4), App.Rotation())
sketch10.addGeometry(Part.Circle(Vector(25.4, 31.8, 0), Vector(0, 0, 1), 1.6), False)
sketch10.addConstraint([
    Sketcher.Constraint("Diameter", 0, Q("0.125 in")),
    Sketcher.Constraint("DistanceX", -1, 1, 0, 3, Q("1 in")),
    Sketcher.Constraint("DistanceY", -1, 1, 0, 3, Q("1.25 in")),
])
doc.recompute()
hole3 = body.newObject("PartDesign::Hole", "Hole002")
hole3.Profile = sketch10
hole3.ThreadType = "None"
hole3.Diameter = Q("0.125 in")
hole3.DepthType = "Dimension"
hole3.Depth = Q("0.2 in")
hole3.DrillPoint = "Angled"
hole3.DrillPointAngle = 118
hole3.Reversed = True

# Sketch on YZ plane
sketch11 = body.newObject("Sketcher::SketchObject", "Sketch010")
sketch11.AttachmentSupport = (doc.getObject("YZ_Plane"), [""])
sketch11.MapMode = "FlatFace"
sketch11.AttachmentOffset = App.Placement(Vector(0, 0, -2 * 25.4), App.Rotation())
sketch11.addGeometry(Part.Circle(Vector(-25.4, 31.8, 0), Vector(0, 0, 1), 1.6), False)
sketch11.addConstraint([
    Sketcher.Constraint("Diameter", 0, Q("0.125 in")),
    Sketcher.Constraint("DistanceX", 0, 3, -1, 1, Q("1 in")),
    Sketcher.Constraint("DistanceY", -1, 1, 0, 3, Q("1.25 in")),
])
doc.recompute()
hole4 = body.newObject("PartDesign::Hole", "Hole003")
hole4.Profile = sketch11
hole4.ThreadType = "None"
hole4.Diameter = Q("0.125 in")
hole4.DepthType = "Dimension"
hole4.Depth = Q("0.2 in")
hole4.DrillPoint = "Angled"
hole4.DrillPointAngle = 118
hole4.Reversed = True

# Sketch on YZ plane
sketch12 = body.newObject("Sketcher::SketchObject", "Sketch011")
sketch12.AttachmentSupport = (doc.getObject("YZ_Plane"), [""])
sketch12.MapMode = "FlatFace"
sketch12.AttachmentOffset = App.Placement(Vector(0, 0, 2 * 25.4), App.Rotation())
sketch12.addGeometry(Part.Circle(Vector(-25.4, 31.8, 0), Vector(0, 0, 1), 1.6), False)
sketch12.addConstraint([
    Sketcher.Constraint("Diameter", 0, Q("0.125 in")),
    Sketcher.Constraint("DistanceX", 0, 3, -1, 1, Q("1 in")),
    Sketcher.Constraint("DistanceY", -1, 1, 0, 3, Q("1.25 in")),
])
doc.recompute()
hole5 = body.newObject("PartDesign::Hole", "Hole004")
hole5.Profile = sketch12
hole5.ThreadType = "None"
hole5.Diameter = Q("0.125 in")
hole5.DepthType = "Dimension"
hole5.Depth = Q("0.2 in")
hole5.DrillPoint = "Angled"
hole5.DrillPointAngle = 118

# Sketch on YZ plane
sketch13 = body.newObject("Sketcher::SketchObject", "Sketch012")
sketch13.AttachmentSupport = (doc.getObject("YZ_Plane"), [""])
sketch13.MapMode = "FlatFace"
sketch13.AttachmentOffset = App.Placement(Vector(0, 0, 2 * 25.4), App.Rotation())
sketch13.addGeometry(Part.Circle(Vector(25.4, 31.8, 0), Vector(0, 0, 1), 1.6), False)
sketch13.addConstraint([
    Sketcher.Constraint("Diameter", 0, Q("0.125 in")),
    Sketcher.Constraint("DistanceX", -1, 1, 0, 3, Q("1 in")),
    Sketcher.Constraint("DistanceY", -1, 1, 0, 3, Q("1.25 in")),
])
doc.recompute()
hole6 = body.newObject("PartDesign::Hole", "Hole005")
hole6.Profile = sketch13
hole6.ThreadType = "None"
hole6.Diameter = Q("0.125 in")
hole6.DepthType = "Dimension"
hole6.Depth = Q("0.2 in")
hole6.DrillPoint = "Angled"
hole6.DrillPointAngle = 118

# Sketch on XZ plane
sketch14 = body.newObject("Sketcher::SketchObject", "Sketch013")
sketch14.AttachmentSupport = (doc.getObject("XZ_Plane"), [""])
sketch14.MapMode = "FlatFace"
sketch14.AttachmentOffset = App.Placement(Vector(0, 0, -2 * 25.4), App.Rotation())
sketch14.addGeometry(Part.Circle(Vector(25.4, 31.7, 0), Vector(0, 0, 1), 1.6), False)
sketch14.addConstraint([
    Sketcher.Constraint("Diameter", 0, Q("0.125 in")),
    Sketcher.Constraint("DistanceX", -1, 1, 0, 3, Q("1 in")),
    Sketcher.Constraint("DistanceY", -1, 1, 0, 3, Q("31.65659 mm")),
])
doc.recompute()
hole7 = body.newObject("PartDesign::Hole", "Hole006")
hole7.Profile = sketch14
hole7.ThreadType = "None"
hole7.Diameter = Q("0.125 in")
hole7.DepthType = "Dimension"
hole7.Depth = Q("0.2 in")
hole7.DrillPoint = "Angled"
hole7.DrillPointAngle = 118
hole7.Reversed = True

# Sketch on XZ plane
sketch15 = body.newObject("Sketcher::SketchObject", "Sketch014")
sketch15.AttachmentSupport = (doc.getObject("XZ_Plane"), [""])
sketch15.MapMode = "FlatFace"
sketch15.AttachmentOffset = App.Placement(Vector(0, 0, -2 * 25.4), App.Rotation())
sketch15.addGeometry(Part.Circle(Vector(-25.5, 31.8, 0), Vector(0, 0, 1), 1.6), False)
sketch15.addConstraint([
    Sketcher.Constraint("Diameter", 0, Q("0.125 in")),
    Sketcher.Constraint("DistanceY", -1, 1, 0, 3, Q("1.25 in")),
    Sketcher.Constraint("DistanceX", 0, 3, -1, 1, Q("25.452575 mm")),
])
doc.recompute()
hole8 = body.newObject("PartDesign::Hole", "Hole007")
hole8.Profile = sketch15
hole8.ThreadType = "None"
hole8.Diameter = Q("0.125 in")
hole8.DepthType = "Dimension"
hole8.Depth = Q("0.2 in")
hole8.DrillPoint = "Angled"
hole8.DrillPointAngle = 118
hole8.Reversed = True

# Sketch on XY plane
sketch16 = body.newObject("Sketcher::SketchObject", "Sketch015")
sketch16.AttachmentSupport = (doc.getObject("XY_Plane"), [""])
sketch16.MapMode = "FlatFace"
sketch16.AttachmentOffset = App.Placement(Vector(0, 0, 0.125 * 25.4), App.Rotation())
sketch16.addGeometry([
    Part.Circle(Vector(0, 0, 0), Vector(0, 0, 1), 70),
    Part.Circle(Vector(0, 0, 0), Vector(0, 0, 1), 51),
], False)
sketch16.addConstraint([
    Sketcher.Constraint("Coincident", 0, 3, -1, 1),
    Sketcher.Constraint("Coincident", 1, 3, -1, 1),
    Sketcher.Constraint("Diameter", 1, Q("4 in")),
    Sketcher.Constraint("Diameter", 0, Q("5.5 in")),
])
pocket4 = body.newObject("PartDesign::Pocket", "Pocket003")
pocket4.Profile = sketch16
pocket4.Length = Q("0.125 in")

doc.recompute()
